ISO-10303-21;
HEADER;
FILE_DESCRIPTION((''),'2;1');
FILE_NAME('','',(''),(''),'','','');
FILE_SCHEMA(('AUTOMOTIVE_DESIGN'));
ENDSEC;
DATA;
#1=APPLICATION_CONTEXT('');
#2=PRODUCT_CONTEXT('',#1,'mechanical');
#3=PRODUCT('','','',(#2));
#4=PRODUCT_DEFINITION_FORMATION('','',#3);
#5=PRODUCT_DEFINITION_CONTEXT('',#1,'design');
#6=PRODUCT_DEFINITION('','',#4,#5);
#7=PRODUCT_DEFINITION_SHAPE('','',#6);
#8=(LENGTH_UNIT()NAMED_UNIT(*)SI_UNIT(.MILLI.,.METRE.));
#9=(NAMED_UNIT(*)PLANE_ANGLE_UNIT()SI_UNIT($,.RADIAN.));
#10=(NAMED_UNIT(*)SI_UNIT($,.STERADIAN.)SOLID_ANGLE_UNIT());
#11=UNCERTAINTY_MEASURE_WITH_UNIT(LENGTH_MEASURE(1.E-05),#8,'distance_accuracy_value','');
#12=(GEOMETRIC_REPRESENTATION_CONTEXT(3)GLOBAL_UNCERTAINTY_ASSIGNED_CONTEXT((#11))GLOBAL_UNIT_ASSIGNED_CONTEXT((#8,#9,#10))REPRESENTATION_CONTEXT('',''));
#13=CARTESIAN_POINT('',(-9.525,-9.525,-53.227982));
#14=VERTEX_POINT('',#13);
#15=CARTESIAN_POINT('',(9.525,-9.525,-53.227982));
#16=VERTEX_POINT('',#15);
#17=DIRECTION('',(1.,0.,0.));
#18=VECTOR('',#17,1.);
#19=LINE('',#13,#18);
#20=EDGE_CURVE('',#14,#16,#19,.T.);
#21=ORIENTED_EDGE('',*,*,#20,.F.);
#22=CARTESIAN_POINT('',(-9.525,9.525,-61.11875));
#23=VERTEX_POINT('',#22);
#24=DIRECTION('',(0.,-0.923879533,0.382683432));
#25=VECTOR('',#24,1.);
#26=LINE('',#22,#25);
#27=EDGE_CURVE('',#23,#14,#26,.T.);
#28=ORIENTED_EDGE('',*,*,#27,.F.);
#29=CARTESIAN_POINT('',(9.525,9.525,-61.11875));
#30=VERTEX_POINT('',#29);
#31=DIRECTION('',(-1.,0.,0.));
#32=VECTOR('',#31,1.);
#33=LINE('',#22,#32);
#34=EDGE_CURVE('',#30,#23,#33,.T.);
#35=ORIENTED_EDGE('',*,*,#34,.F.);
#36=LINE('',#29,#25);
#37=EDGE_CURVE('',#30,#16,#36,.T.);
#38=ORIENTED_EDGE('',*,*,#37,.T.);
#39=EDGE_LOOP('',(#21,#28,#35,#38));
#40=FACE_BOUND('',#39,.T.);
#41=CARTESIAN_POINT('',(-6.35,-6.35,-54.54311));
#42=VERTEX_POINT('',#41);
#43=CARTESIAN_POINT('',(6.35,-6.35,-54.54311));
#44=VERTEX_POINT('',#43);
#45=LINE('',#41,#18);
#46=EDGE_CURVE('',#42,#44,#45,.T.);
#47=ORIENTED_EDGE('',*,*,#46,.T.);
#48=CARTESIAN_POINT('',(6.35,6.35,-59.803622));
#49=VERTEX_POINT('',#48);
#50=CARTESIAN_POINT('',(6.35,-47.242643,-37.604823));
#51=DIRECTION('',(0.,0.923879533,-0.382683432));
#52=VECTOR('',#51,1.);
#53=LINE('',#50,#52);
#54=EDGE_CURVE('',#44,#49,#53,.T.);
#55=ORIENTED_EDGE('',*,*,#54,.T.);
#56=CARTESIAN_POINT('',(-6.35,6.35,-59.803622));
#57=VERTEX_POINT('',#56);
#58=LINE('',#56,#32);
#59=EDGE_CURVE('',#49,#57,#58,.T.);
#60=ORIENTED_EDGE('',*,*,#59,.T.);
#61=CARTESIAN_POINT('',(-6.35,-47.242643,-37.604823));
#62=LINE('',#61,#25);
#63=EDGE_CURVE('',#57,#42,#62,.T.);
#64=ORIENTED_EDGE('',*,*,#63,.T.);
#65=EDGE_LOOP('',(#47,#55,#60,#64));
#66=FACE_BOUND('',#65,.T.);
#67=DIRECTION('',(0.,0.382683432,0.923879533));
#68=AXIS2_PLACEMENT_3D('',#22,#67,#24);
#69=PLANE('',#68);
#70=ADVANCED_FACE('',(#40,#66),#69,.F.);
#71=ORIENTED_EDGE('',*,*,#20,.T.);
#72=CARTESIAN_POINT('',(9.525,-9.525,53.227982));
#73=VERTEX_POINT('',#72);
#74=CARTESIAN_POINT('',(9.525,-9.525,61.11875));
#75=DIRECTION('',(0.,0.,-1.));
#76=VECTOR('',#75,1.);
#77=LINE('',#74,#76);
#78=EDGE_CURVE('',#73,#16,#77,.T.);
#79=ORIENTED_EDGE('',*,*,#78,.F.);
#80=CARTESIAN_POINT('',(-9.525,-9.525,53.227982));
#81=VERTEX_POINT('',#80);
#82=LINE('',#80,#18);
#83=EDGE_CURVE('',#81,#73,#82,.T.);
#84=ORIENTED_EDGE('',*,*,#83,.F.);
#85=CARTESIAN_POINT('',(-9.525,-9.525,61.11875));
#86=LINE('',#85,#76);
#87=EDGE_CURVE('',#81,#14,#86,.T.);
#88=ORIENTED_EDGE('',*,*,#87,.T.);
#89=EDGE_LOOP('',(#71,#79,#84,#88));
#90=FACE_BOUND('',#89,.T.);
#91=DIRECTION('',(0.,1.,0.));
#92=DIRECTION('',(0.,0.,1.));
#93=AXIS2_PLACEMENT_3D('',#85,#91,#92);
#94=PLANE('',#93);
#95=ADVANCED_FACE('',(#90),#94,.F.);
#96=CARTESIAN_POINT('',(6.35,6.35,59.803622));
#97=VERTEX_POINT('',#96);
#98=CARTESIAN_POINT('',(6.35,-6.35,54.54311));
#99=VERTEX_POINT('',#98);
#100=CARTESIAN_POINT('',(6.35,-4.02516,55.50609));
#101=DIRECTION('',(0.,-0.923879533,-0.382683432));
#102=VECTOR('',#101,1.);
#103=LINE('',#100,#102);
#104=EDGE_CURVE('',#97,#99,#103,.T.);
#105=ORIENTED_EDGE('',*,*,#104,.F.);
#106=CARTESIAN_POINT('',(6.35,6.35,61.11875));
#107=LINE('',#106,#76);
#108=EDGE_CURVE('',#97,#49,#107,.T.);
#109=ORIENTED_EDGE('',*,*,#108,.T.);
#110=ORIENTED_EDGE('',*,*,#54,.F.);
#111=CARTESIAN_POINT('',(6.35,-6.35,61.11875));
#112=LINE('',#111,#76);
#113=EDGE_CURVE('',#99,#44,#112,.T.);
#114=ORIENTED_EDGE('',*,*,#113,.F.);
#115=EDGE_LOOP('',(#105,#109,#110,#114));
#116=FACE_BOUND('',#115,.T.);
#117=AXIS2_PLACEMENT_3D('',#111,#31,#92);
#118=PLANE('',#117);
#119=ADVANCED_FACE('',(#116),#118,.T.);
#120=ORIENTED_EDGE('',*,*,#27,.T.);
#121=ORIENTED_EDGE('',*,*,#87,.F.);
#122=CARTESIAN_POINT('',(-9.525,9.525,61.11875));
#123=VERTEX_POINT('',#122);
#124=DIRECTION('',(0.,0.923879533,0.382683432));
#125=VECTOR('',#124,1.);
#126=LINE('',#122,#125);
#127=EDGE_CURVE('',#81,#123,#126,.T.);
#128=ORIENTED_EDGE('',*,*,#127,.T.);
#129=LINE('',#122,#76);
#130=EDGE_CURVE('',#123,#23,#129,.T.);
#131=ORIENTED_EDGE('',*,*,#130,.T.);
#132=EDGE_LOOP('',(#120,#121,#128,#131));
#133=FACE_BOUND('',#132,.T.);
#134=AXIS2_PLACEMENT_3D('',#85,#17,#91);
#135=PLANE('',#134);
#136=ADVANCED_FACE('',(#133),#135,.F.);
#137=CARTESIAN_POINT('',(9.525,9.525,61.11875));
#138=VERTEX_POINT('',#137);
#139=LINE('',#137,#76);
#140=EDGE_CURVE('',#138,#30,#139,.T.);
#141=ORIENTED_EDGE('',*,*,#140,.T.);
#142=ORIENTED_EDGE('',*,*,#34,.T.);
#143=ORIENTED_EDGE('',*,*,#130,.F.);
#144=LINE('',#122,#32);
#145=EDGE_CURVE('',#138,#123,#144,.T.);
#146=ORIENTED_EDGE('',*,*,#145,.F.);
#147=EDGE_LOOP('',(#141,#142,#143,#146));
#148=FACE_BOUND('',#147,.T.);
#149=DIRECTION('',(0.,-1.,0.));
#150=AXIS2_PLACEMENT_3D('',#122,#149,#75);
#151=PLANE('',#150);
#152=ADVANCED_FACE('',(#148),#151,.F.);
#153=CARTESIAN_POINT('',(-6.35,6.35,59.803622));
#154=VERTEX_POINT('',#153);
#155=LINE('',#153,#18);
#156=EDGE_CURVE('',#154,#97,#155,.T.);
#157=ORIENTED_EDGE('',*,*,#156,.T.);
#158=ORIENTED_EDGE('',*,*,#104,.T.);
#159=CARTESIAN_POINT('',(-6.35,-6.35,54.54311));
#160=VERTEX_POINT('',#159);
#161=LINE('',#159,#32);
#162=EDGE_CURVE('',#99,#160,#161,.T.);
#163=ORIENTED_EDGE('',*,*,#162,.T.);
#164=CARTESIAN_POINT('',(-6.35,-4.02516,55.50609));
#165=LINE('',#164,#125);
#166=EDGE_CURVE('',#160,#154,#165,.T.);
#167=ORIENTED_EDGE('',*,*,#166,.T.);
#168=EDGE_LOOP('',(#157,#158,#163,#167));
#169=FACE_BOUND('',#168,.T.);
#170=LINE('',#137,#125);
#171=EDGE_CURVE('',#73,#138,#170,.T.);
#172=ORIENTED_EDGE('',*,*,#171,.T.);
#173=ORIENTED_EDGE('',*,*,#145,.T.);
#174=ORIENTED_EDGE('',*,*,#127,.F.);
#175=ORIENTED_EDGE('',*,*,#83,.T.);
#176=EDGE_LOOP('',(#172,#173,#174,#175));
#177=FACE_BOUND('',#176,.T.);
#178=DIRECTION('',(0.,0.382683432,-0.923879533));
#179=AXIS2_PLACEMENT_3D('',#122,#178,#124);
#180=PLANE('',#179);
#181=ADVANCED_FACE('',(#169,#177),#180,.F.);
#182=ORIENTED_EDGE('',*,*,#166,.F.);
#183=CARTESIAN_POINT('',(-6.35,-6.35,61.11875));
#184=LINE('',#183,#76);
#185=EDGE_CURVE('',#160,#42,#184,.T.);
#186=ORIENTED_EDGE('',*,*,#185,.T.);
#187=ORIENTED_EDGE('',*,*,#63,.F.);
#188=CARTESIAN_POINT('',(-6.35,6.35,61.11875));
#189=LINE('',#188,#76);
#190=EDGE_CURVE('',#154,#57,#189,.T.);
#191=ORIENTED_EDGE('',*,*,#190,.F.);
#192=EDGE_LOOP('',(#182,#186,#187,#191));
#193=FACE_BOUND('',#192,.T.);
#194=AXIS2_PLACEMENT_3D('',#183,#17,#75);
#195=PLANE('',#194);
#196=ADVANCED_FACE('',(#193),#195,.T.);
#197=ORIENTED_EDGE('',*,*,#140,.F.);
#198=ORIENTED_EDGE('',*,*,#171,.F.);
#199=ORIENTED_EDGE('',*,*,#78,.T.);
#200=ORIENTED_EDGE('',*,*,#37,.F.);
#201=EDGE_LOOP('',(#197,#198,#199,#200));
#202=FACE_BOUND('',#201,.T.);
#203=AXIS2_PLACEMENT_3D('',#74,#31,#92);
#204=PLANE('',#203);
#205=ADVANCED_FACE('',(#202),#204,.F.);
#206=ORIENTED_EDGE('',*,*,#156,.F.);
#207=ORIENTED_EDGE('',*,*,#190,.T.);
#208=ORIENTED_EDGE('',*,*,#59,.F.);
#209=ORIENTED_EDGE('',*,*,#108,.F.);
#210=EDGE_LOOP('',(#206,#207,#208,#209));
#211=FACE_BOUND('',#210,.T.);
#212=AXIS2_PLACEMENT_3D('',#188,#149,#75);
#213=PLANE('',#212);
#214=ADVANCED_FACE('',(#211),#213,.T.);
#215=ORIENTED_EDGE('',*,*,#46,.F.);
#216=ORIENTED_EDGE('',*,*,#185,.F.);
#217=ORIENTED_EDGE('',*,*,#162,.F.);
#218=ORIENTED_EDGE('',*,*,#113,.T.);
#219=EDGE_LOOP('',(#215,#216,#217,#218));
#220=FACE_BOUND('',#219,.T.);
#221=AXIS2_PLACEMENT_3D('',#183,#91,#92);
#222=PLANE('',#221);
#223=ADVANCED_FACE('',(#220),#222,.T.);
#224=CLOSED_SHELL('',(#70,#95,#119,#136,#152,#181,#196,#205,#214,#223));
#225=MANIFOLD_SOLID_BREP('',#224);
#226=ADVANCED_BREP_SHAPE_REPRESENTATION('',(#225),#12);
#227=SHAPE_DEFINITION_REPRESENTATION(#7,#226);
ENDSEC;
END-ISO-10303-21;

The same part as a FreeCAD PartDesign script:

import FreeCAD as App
import Part
import Sketcher

V = App.Vector
Q = App.Units.Quantity

doc = App.newDocument("Part")
params = doc.addObject("Spreadsheet::Sheet", "Params")
for row, (alias, value) in enumerate([
    ("sketch1_width", "0.5 in"),
    ("sketch1_width2", "0.75 in"),
    ("pad1_length", "4.8125 in"),
    ("sketch2_width", "0.75 in"),
], start=1):
    params.set(f"A{row}", alias)
    params.set(f"B{row}", "=" + value)
    params.setAlias(f"B{row}", alias)

body = doc.addObject("PartDesign::Body", "Body")

sketch1 = doc.addObject("Sketcher::SketchObject", "Sketch")
body.addObject(sketch1)
sketch1.AttachmentSupport = (doc.XY_Plane, [""])
sketch1.MapMode = "FlatFace"
sketch1.addGeometry(Part.LineSegment(V(-10, 10, 0), V(-10, -10, 0)), False)
sketch1.addGeometry(Part.LineSegment(V(-10, -10, 0), V(10, -10, 0)), False)
sketch1.addGeometry(Part.LineSegment(V(10, -10, 0), V(10, 10, 0)), False)
sketch1.addGeometry(Part.LineSegment(V(10, 10, 0), V(-10, 10, 0)), False)
sketch1.addGeometry(Part.LineSegment(V(6, -6, 0), V(-6, -6, 0)), False)
sketch1.addGeometry(Part.LineSegment(V(-6, -6, 0), V(-6, 6, 0)), False)
sketch1.addGeometry(Part.LineSegment(V(-6, 6, 0), V(6, 6, 0)), False)
sketch1.addGeometry(Part.LineSegment(V(6, 6, 0), V(6, -6, 0)), False)
sketch1.addConstraint(Sketcher.Constraint("Coincident", 0, 2, 1, 1))
sketch1.addConstraint(Sketcher.Constraint("Coincident", 1, 2, 2, 1))
sketch1.addConstraint(Sketcher.Constraint("Coincident", 2, 2, 3, 1))
sketch1.addConstraint(Sketcher.Constraint("Coincident", 3, 2, 0, 1))
sketch1.addConstraint(Sketcher.Constraint("Coincident", 4, 2, 5, 1))
sketch1.addConstraint(Sketcher.Constraint("Coincident", 5, 2, 6, 1))
sketch1.addConstraint(Sketcher.Constraint("Coincident", 6, 2, 7, 1))
sketch1.addConstraint(Sketcher.Constraint("Coincident", 7, 2, 4, 1))
sketch1.addConstraint(Sketcher.Constraint("Vertical", 0))
sketch1.addConstraint(Sketcher.Constraint("Horizontal", 1))
sketch1.addConstraint(Sketcher.Constraint("Vertical", 2))
sketch1.addConstraint(Sketcher.Constraint("Horizontal", 3))
sketch1.addConstraint(Sketcher.Constraint("Horizontal", 4))
sketch1.addConstraint(Sketcher.Constraint("Vertical", 5))
sketch1.addConstraint(Sketcher.Constraint("Horizontal", 6))
sketch1.addConstraint(Sketcher.Constraint("Vertical", 7))
sketch1.addConstraint(Sketcher.Constraint("Symmetric", 0, 2, 2, 2, -1, 1))
sketch1.addConstraint(Sketcher.Constraint("Symmetric", 4, 2, 6, 2, -1, 1))
sketch1.addConstraint(Sketcher.Constraint("Equal", 3, 0))
sketch1.addConstraint(Sketcher.Constraint("Equal", 6, 5))
sketch1.addConstraint(Sketcher.Constraint("DistanceX", 4, 2, 4, 1, Q("0.5 in")))
sketch1.addConstraint(Sketcher.Constraint("DistanceX", 1, 1, 1, 2, Q("0.75 in")))
sketch1.setExpression("Constraints[20]", "Params.sketch1_width")
sketch1.setExpression("Constraints[21]", "Params.sketch1_width2")
pad1 = doc.addObject("PartDesign::Pad", "Pad")
body.addObject(pad1)
pad1.Profile = sketch1
pad1.setExpression("Length", "Params.pad1_length")
pad1.Midplane = True

sketch2 = doc.addObject("Sketcher::SketchObject", "Sketch001")
body.addObject(sketch2)
sketch2.AttachmentSupport = (doc.YZ_Plane, [""])
sketch2.MapMode = "FlatFace"
sketch2.AttachmentOffset = App.Placement(V(0, 0, 0.375 * 25.4), App.Rotation())
sketch2.addGeometry(Part.LineSegment(V(-10, 53, 0), V(10, 61, 0)), False)
sketch2.addGeometry(Part.LineSegment(V(10, 61, 0), V(-10, 61, 0)), False)
sketch2.addGeometry(Part.LineSegment(V(-10, 61, 0), V(-10, 53, 0)), False)
sketch2.addGeometry(Part.LineSegment(V(10, -61, 0), V(-10, -53, 0)), False)
sketch2.addGeometry(Part.LineSegment(V(-10, -53, 0), V(-10, -61, 0)), False)
sketch2.addGeometry(Part.LineSegment(V(-10, -61, 0), V(10, -61, 0)), False)
sketch2.addConstraint(Sketcher.Constraint("Coincident", 0, 2, 1, 1))
sketch2.addConstraint(Sketcher.Constraint("Coincident", 1, 2, 2, 1))
sketch2.addConstraint(Sketcher.Constraint("Coincident", 2, 2, 0, 1))
sketch2.addConstraint(Sketcher.Constraint("Coincident", 3, 2, 4, 1))
sketch2.addConstraint(Sketcher.Constraint("Coincident", 4, 2, 5, 1))
sketch2.addConstraint(Sketcher.Constraint("Coincident", 5, 2, 3, 1))
sketch2.addConstraint(Sketcher.Constraint("Horizontal", 1))
sketch2.addConstraint(Sketcher.Constraint("Vertical", 2))
sketch2.addConstraint(Sketcher.Constraint("Vertical", 4))
sketch2.addConstraint(Sketcher.Constraint("Horizontal", 5))
sketch2.addConstraint(Sketcher.Constraint("Symmetric", 0, 2, 4, 2, -1, 1))
sketch2.addConstraint(Sketcher.Constraint("Symmetric", 2, 2, 3, 2, -1))
sketch2.addConstraint(Sketcher.Constraint("Vertical", 0, 2, 5, 2))
sketch2.addConstraint(Sketcher.Constraint("DistanceX", 1, 2, 1, 1, Q("0.75 in")))
sketch2.addConstraint(Sketcher.Constraint("Angle", 0, Q("22.5 deg")))
sketch2.addConstraint(Sketcher.Constraint("DistanceY", -1, 1, 0, 2, Q("2.40625 in")))
sketch2.setExpression("Constraints[13]", "Params.sketch2_width")
pocket1 = doc.addObject("PartDesign::Pocket", "Pocket")
body.addObject(pocket1)
pocket1.Profile = sketch2
pocket1.Type = "ThroughAll"

doc.recompute()
